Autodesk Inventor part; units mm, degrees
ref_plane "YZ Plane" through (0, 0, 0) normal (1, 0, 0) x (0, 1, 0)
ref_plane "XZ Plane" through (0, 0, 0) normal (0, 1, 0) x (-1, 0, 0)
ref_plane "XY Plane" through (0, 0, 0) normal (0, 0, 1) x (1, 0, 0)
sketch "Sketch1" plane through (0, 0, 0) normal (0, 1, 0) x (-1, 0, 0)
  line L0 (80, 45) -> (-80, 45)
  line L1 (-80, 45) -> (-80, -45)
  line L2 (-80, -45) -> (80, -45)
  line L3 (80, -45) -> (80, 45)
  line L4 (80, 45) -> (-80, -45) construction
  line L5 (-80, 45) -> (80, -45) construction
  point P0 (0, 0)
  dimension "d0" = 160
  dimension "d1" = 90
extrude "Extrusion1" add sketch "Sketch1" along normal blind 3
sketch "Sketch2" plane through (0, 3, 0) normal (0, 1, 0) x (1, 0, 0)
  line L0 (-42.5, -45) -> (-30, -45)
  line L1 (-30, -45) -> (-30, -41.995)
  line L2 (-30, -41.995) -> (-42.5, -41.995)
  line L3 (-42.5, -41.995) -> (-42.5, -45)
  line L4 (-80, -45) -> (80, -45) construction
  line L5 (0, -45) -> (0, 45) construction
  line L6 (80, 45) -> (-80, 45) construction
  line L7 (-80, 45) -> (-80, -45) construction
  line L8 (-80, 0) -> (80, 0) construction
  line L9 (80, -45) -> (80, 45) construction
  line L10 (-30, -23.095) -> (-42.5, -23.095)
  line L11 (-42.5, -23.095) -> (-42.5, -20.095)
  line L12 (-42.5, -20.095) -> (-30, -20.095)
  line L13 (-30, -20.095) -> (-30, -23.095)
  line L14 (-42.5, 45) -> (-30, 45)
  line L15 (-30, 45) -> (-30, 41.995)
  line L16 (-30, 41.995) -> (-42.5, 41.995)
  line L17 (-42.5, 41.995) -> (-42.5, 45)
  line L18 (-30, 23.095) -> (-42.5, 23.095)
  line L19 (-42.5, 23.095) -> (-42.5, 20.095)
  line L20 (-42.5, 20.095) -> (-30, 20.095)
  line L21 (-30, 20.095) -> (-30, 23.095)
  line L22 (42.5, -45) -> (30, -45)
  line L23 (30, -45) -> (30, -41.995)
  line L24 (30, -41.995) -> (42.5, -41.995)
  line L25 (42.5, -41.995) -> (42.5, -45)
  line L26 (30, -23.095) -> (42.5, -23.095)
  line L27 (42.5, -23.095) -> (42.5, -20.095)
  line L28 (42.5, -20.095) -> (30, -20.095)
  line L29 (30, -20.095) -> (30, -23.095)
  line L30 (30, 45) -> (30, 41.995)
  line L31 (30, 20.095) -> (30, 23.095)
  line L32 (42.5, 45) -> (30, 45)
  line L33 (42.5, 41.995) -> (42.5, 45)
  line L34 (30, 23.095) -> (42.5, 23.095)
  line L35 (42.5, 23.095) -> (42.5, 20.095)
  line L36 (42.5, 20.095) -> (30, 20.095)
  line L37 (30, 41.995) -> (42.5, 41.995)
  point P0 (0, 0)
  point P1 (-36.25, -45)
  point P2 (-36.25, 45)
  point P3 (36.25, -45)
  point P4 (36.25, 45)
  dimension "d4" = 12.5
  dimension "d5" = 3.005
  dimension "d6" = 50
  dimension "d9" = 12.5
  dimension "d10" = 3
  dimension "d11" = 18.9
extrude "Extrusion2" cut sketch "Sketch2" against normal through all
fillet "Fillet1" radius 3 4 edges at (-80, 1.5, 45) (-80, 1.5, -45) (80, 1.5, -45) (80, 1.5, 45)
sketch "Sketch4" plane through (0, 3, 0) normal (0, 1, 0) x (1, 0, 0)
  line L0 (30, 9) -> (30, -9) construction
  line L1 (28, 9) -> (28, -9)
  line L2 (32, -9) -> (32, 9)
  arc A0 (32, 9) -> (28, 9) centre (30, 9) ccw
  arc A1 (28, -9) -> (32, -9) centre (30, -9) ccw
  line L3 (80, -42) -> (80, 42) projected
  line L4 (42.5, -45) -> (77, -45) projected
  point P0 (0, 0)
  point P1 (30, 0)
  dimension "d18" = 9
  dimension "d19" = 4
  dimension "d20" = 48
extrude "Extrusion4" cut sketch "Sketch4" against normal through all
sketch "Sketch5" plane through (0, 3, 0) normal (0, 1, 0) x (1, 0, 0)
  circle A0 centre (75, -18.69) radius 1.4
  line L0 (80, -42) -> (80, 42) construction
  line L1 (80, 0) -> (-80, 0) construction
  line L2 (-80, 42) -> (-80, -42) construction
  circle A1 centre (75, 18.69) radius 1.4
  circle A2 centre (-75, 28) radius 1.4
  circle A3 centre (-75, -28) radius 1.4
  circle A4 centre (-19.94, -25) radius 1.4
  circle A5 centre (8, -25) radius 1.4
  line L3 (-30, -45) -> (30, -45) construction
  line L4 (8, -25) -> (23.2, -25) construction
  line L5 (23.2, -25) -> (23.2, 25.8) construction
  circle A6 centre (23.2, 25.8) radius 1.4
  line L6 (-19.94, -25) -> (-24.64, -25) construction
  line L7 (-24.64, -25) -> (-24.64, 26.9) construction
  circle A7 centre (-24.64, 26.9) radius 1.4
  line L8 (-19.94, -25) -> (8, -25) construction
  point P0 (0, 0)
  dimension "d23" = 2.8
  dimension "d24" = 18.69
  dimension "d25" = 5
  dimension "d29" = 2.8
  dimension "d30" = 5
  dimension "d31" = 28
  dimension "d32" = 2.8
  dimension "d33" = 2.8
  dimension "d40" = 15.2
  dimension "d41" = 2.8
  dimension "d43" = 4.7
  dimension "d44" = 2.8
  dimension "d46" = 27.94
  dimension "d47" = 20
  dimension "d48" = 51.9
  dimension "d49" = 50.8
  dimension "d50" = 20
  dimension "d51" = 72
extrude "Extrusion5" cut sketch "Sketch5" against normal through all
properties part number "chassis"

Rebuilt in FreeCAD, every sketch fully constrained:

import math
import FreeCAD as App
import Part
import Sketcher


def edges_at(feature, points):
    """Names of the edges that pass closest to the given points."""
    edges = feature.Shape.Edges
    near = lambda p: min(range(len(edges)), key=lambda i: edges[i].distToShape(Part.Vertex(*p))[0])
    return sorted({f"Edge{near(p) + 1}" for p in points})


def add_polygon(sketch, points):
    """Adds a closed chain of lines whose ends are joined by coincident constraints."""
    first, n = sketch.GeometryCount, len(points)
    for a, b in zip(points, points[1:] + points[:1]):
        sketch.addGeometry(Part.LineSegment(App.Vector(*a, 0), App.Vector(*b, 0)), False)
    for i in range(n):
        sketch.addConstraint(Sketcher.Constraint("Coincident", first + i, 2, first + (i + 1) % n, 1))

doc = App.newDocument("Part")
body = doc.addObject("PartDesign::Body", "Body")

sketch1 = body.newObject("Sketcher::SketchObject", "Sketch")
sketch1.AttachmentSupport = (doc.getObject("XZ_Plane"), [""])
sketch1.MapMode = "FlatFace"
add_polygon(sketch1, [(-80, -45), (-80, 45), (80, 45), (80, -45)])
sketch1.addConstraint([
    Sketcher.Constraint("Vertical", 0),
    Sketcher.Constraint("Horizontal", 1),
    Sketcher.Constraint("Vertical", 2),
    Sketcher.Constraint("Horizontal", 3),
    Sketcher.Constraint("Symmetric", 0, 2, 2, 2, -1, 1),
    Sketcher.Constraint("DistanceX", 1, 1, 1, 2, 160.0),
    Sketcher.Constraint("DistanceY", 0, 1, 0, 2, 90.0),
])
pad1 = body.newObject("PartDesign::Pad", "Pad")
pad1.Profile = sketch1
pad1.Length = 3
pad1.Reversed = True

sketch2 = body.newObject("Sketcher::SketchObject", "Sketch001")
sketch2.AttachmentSupport = (doc.getObject("XZ_Plane"), [""])
sketch2.MapMode = "FlatFace"
sketch2.AttachmentOffset = App.Placement(App.Vector(0, 0, -3), App.Rotation())
add_polygon(sketch2, [(-42.5, 42), (-42.5, 45), (-30, 45), (-30, 42)])
add_polygon(sketch2, [(-42.5, 23.1), (-30, 23.1), (-30, 20.1), (-42.5, 20.1)])
add_polygon(sketch2, [(-30, -45), (-42.5, -45), (-42.5, -42), (-30, -42)])
add_polygon(sketch2, [(-30, -20.1), (-30, -23.1), (-42.5, -23.1), (-42.5, -20.1)])
add_polygon(sketch2, [(30, 45), (42.5, 45), (42.5, 42), (30, 42)])
add_polygon(sketch2, [(30, 20.1), (30, 23.1), (42.5, 23.1), (42.5, 20.1)])
add_polygon(sketch2, [(42.5, -45), (30, -45), (30, -42), (42.5, -42)])
add_polygon(sketch2, [(30, -23.1), (30, -20.1), (42.5, -20.1), (42.5, -23.1)])
sketch2.addConstraint([
    Sketcher.Constraint("Vertical", 0),
    Sketcher.Constraint("Horizontal", 1),
    Sketcher.Constraint("Vertical", 2),
    Sketcher.Constraint("Horizontal", 3),
    Sketcher.Constraint("Horizontal", 4),
    Sketcher.Constraint("Vertical", 5),
    Sketcher.Constraint("Horizontal", 6),
    Sketcher.Constraint("Vertical", 7),
    Sketcher.Constraint("Horizontal", 8),
    Sketcher.Constraint("Vertical", 9),
    Sketcher.Constraint("Horizontal", 10),
    Sketcher.Constraint("Vertical", 11),
    Sketcher.Constraint("Vertical", 12),
    Sketcher.Constraint("Horizontal", 13),
    Sketcher.Constraint("Vertical", 14),
    Sketcher.Constraint("Horizontal", 15),
    Sketcher.Constraint("Horizontal", 16),
    Sketcher.Constraint("Vertical", 17),
    Sketcher.Constraint("Horizontal", 18),
    Sketcher.Constraint("Vertical", 19),
    Sketcher.Constraint("Vertical", 20),
    Sketcher.Constraint("Horizontal", 21),
    Sketcher.Constraint("Vertical", 22),
    Sketcher.Constraint("Horizontal", 23),
    Sketcher.Constraint("Horizontal", 24),
    Sketcher.Constraint("Vertical", 25),
    Sketcher.Constraint("Horizontal", 26),
    Sketcher.Constraint("Vertical", 27),
    Sketcher.Constraint("Vertical", 28),
    Sketcher.Constraint("Horizontal", 29),
    Sketcher.Constraint("Vertical", 30),
    Sketcher.Constraint("Horizontal", 31),
    Sketcher.Constraint("Symmetric", 8, 2, 16, 2, -1, 1),
    Sketcher.Constraint("Symmetric", 10, 2, 18, 2, -1, 1),
    Sketcher.Constraint("Symmetric", 12, 2, 20, 2, -1, 1),
    Sketcher.Constraint("Symmetric", 14, 2, 22, 2, -1, 1),
    Sketcher.Constraint("Symmetric", 1, 2, 24, 2, -1, 1),
    Sketcher.Constraint("Symmetric", 3, 2, 26, 2, -1, 1),
    Sketcher.Constraint("Symmetric", 5, 2, 28, 2, -1, 1),
    Sketcher.Constraint("Symmetric", 7, 2, 30, 2, -1, 1),
    Sketcher.Constraint("Symmetric", 0, 2, 16, 2, -2),
    Sketcher.Constraint("Symmetric", 2, 2, 18, 2, -2),
    Sketcher.Constraint("Symmetric", 4, 2, 20, 2, -2),
    Sketcher.Constraint("Symmetric", 6, 2, 22, 2, -2),
    Sketcher.Constraint("Vertical", 2, 2, 4, 2),
    Sketcher.Constraint("Vertical", 3, 2, 6, 2),
    Sketcher.Constraint("DistanceY", 5, 2, 5, 1, 3.0),
    Sketcher.Constraint("DistanceX", 1, 1, 1, 2, 12.5),
    Sketcher.Constraint("DistanceY", 4, 2, 2, 2, 18.9),
    Sketcher.Constraint("DistanceY", 0, 1, 0, 2, 3.005),
    Sketcher.Constraint("DistanceY", -1, 1, 0, 2, 45.0),
    Sketcher.Constraint("DistanceX", 1, 2, -1, 1, 30.0),
])
pocket1 = body.newObject("PartDesign::Pocket", "Pocket")
pocket1.Profile = sketch2
pocket1.Type = "ThroughAll"
pocket1.Reversed = True
doc.recompute()

fillet = body.newObject("PartDesign::Fillet", "Fillet")
fillet.Base = (pocket1, edges_at(pocket1, [
    (-80, 1.5, 45),
    (-80, 1.5, -45),
    (80, 1.5, -45),
    (80, 1.5, 45),
]))
fillet.Radius = 3

sketch3 = body.newObject("Sketcher::SketchObject", "Sketch002")
sketch3.AttachmentSupport = (doc.getObject("XZ_Plane"), [""])
sketch3.MapMode = "FlatFace"
sketch3.AttachmentOffset = App.Placement(App.Vector(0, 0, -3), App.Rotation())
sketch3.addGeometry([
    Part.ArcOfCircle(Part.Circle(App.Vector(30, -9, 0), App.Vector(0, 0, 1), 2), math.radians(180), math.radians(360)),
    Part.LineSegment(App.Vector(28, -9, 0), App.Vector(28, 9, 0)),
    Part.ArcOfCircle(Part.Circle(App.Vector(30, 9, 0), App.Vector(0, 0, 1), 2), math.radians(0), math.radians(180)),
    Part.LineSegment(App.Vector(32, 9, 0), App.Vector(32, -9, 0)),
], False)
sketch3.addConstraint([
    Sketcher.Constraint("Tangent", 0, 1, 1, 1),
    Sketcher.Constraint("Tangent", 1, 2, 2, 2),
    Sketcher.Constraint("Tangent", 2, 1, 3, 1),
    Sketcher.Constraint("Tangent", 3, 2, 0, 2),
    Sketcher.Constraint("Vertical", 1),
    Sketcher.Constraint("Vertical", 3),
    Sketcher.Constraint("Radius", 0, 2.0),
    Sketcher.Constraint("DistanceY", 0, 3, -1, 1, 9.0),
    Sketcher.Constraint("DistanceY", -1, 1, 2, 3, 9.0),
    Sketcher.Constraint("DistanceX", -1, 1, 0, 3, 30.0),
])
pocket2 = body.newObject("PartDesign::Pocket", "Pocket001")
pocket2.Profile = sketch3
pocket2.Type = "ThroughAll"
pocket2.Reversed = True

sketch4 = body.newObject("Sketcher::SketchObject", "Sketch003")
sketch4.AttachmentSupport = (doc.getObject("XZ_Plane"), [""])
sketch4.MapMode = "FlatFace"
sketch4.AttachmentOffset = App.Placement(App.Vector(0, 0, -3), App.Rotation())
sketch4.addGeometry([
    Part.Circle(App.Vector(75, 18.7, 0), App.Vector(0, 0, 1), 1.4),
    Part.Circle(App.Vector(75, -18.7, 0), App.Vector(0, 0, 1), 1.4),
    Part.Circle(App.Vector(-75, -28, 0), App.Vector(0, 0, 1), 1.4),
    Part.Circle(App.Vector(-75, 28, 0), App.Vector(0, 0, 1), 1.4),
    Part.Circle(App.Vector(-19.9, 25, 0), App.Vector(0, 0, 1), 1.4),
    Part.Circle(App.Vector(8, 25, 0), App.Vector(0, 0, 1), 1.4),
    Part.Circle(App.Vector(23.2, -25.8, 0), App.Vector(0, 0, 1), 1.4),
    Part.Circle(App.Vector(-24.6, -26.9, 0), App.Vector(0, 0, 1), 1.4),
], False)
sketch4.addConstraint([
    Sketcher.Constraint("Equal", 0, 1),
    Sketcher.Constraint("Equal", 1, 2),
    Sketcher.Constraint("Equal", 2, 3),
    Sketcher.Constraint("Equal", 3, 4),
    Sketcher.Constraint("Equal", 4, 5),
    Sketcher.Constraint("Equal", 5, 6),
    Sketcher.Constraint("Equal", 6, 7),
    Sketcher.Constraint("Symmetric", 0, 3, 1, 3, -1),
    Sketcher.Constraint("Symmetric", 2, 3, 3, 3, -1),
    Sketcher.Constraint("Horizontal", 4, 3, 5, 3),
    Sketcher.Constraint("Diameter", 0, 2.8),
    Sketcher.Constraint("DistanceY", 2, 3, -1, 1, 28.0),
    Sketcher.Constraint("DistanceX", 5, 3, 6, 3, 15.2),
    Sketcher.Constraint("DistanceY", 6, 3, 5, 3, 50.8),
    Sketcher.Constraint("DistanceX", 7, 3, 4, 3, 4.7),
    Sketcher.Constraint("DistanceY", 7, 3, 4, 3, 51.9),
    Sketcher.Constraint("DistanceY", -1, 1, 0, 3, 18.69),
    Sketcher.Constraint("DistanceX", 4, 3, 5, 3, 27.94),
    Sketcher.Constraint("DistanceX", -1, 1, 0, 3, 75.0),
    Sketcher.Constraint("DistanceX", 2, 3, -1, 1, 75.0),
    Sketcher.Constraint("DistanceY", -1, 1, 4, 3, 25.0),
    Sketcher.Constraint("DistanceX", -1, 1, 5, 3, 8.0),
])
pocket3 = body.newObject("PartDesign::Pocket", "Pocket002")
pocket3.Profile = sketch4
pocket3.Type = "ThroughAll"
pocket3.Reversed = True

doc.recompute()
